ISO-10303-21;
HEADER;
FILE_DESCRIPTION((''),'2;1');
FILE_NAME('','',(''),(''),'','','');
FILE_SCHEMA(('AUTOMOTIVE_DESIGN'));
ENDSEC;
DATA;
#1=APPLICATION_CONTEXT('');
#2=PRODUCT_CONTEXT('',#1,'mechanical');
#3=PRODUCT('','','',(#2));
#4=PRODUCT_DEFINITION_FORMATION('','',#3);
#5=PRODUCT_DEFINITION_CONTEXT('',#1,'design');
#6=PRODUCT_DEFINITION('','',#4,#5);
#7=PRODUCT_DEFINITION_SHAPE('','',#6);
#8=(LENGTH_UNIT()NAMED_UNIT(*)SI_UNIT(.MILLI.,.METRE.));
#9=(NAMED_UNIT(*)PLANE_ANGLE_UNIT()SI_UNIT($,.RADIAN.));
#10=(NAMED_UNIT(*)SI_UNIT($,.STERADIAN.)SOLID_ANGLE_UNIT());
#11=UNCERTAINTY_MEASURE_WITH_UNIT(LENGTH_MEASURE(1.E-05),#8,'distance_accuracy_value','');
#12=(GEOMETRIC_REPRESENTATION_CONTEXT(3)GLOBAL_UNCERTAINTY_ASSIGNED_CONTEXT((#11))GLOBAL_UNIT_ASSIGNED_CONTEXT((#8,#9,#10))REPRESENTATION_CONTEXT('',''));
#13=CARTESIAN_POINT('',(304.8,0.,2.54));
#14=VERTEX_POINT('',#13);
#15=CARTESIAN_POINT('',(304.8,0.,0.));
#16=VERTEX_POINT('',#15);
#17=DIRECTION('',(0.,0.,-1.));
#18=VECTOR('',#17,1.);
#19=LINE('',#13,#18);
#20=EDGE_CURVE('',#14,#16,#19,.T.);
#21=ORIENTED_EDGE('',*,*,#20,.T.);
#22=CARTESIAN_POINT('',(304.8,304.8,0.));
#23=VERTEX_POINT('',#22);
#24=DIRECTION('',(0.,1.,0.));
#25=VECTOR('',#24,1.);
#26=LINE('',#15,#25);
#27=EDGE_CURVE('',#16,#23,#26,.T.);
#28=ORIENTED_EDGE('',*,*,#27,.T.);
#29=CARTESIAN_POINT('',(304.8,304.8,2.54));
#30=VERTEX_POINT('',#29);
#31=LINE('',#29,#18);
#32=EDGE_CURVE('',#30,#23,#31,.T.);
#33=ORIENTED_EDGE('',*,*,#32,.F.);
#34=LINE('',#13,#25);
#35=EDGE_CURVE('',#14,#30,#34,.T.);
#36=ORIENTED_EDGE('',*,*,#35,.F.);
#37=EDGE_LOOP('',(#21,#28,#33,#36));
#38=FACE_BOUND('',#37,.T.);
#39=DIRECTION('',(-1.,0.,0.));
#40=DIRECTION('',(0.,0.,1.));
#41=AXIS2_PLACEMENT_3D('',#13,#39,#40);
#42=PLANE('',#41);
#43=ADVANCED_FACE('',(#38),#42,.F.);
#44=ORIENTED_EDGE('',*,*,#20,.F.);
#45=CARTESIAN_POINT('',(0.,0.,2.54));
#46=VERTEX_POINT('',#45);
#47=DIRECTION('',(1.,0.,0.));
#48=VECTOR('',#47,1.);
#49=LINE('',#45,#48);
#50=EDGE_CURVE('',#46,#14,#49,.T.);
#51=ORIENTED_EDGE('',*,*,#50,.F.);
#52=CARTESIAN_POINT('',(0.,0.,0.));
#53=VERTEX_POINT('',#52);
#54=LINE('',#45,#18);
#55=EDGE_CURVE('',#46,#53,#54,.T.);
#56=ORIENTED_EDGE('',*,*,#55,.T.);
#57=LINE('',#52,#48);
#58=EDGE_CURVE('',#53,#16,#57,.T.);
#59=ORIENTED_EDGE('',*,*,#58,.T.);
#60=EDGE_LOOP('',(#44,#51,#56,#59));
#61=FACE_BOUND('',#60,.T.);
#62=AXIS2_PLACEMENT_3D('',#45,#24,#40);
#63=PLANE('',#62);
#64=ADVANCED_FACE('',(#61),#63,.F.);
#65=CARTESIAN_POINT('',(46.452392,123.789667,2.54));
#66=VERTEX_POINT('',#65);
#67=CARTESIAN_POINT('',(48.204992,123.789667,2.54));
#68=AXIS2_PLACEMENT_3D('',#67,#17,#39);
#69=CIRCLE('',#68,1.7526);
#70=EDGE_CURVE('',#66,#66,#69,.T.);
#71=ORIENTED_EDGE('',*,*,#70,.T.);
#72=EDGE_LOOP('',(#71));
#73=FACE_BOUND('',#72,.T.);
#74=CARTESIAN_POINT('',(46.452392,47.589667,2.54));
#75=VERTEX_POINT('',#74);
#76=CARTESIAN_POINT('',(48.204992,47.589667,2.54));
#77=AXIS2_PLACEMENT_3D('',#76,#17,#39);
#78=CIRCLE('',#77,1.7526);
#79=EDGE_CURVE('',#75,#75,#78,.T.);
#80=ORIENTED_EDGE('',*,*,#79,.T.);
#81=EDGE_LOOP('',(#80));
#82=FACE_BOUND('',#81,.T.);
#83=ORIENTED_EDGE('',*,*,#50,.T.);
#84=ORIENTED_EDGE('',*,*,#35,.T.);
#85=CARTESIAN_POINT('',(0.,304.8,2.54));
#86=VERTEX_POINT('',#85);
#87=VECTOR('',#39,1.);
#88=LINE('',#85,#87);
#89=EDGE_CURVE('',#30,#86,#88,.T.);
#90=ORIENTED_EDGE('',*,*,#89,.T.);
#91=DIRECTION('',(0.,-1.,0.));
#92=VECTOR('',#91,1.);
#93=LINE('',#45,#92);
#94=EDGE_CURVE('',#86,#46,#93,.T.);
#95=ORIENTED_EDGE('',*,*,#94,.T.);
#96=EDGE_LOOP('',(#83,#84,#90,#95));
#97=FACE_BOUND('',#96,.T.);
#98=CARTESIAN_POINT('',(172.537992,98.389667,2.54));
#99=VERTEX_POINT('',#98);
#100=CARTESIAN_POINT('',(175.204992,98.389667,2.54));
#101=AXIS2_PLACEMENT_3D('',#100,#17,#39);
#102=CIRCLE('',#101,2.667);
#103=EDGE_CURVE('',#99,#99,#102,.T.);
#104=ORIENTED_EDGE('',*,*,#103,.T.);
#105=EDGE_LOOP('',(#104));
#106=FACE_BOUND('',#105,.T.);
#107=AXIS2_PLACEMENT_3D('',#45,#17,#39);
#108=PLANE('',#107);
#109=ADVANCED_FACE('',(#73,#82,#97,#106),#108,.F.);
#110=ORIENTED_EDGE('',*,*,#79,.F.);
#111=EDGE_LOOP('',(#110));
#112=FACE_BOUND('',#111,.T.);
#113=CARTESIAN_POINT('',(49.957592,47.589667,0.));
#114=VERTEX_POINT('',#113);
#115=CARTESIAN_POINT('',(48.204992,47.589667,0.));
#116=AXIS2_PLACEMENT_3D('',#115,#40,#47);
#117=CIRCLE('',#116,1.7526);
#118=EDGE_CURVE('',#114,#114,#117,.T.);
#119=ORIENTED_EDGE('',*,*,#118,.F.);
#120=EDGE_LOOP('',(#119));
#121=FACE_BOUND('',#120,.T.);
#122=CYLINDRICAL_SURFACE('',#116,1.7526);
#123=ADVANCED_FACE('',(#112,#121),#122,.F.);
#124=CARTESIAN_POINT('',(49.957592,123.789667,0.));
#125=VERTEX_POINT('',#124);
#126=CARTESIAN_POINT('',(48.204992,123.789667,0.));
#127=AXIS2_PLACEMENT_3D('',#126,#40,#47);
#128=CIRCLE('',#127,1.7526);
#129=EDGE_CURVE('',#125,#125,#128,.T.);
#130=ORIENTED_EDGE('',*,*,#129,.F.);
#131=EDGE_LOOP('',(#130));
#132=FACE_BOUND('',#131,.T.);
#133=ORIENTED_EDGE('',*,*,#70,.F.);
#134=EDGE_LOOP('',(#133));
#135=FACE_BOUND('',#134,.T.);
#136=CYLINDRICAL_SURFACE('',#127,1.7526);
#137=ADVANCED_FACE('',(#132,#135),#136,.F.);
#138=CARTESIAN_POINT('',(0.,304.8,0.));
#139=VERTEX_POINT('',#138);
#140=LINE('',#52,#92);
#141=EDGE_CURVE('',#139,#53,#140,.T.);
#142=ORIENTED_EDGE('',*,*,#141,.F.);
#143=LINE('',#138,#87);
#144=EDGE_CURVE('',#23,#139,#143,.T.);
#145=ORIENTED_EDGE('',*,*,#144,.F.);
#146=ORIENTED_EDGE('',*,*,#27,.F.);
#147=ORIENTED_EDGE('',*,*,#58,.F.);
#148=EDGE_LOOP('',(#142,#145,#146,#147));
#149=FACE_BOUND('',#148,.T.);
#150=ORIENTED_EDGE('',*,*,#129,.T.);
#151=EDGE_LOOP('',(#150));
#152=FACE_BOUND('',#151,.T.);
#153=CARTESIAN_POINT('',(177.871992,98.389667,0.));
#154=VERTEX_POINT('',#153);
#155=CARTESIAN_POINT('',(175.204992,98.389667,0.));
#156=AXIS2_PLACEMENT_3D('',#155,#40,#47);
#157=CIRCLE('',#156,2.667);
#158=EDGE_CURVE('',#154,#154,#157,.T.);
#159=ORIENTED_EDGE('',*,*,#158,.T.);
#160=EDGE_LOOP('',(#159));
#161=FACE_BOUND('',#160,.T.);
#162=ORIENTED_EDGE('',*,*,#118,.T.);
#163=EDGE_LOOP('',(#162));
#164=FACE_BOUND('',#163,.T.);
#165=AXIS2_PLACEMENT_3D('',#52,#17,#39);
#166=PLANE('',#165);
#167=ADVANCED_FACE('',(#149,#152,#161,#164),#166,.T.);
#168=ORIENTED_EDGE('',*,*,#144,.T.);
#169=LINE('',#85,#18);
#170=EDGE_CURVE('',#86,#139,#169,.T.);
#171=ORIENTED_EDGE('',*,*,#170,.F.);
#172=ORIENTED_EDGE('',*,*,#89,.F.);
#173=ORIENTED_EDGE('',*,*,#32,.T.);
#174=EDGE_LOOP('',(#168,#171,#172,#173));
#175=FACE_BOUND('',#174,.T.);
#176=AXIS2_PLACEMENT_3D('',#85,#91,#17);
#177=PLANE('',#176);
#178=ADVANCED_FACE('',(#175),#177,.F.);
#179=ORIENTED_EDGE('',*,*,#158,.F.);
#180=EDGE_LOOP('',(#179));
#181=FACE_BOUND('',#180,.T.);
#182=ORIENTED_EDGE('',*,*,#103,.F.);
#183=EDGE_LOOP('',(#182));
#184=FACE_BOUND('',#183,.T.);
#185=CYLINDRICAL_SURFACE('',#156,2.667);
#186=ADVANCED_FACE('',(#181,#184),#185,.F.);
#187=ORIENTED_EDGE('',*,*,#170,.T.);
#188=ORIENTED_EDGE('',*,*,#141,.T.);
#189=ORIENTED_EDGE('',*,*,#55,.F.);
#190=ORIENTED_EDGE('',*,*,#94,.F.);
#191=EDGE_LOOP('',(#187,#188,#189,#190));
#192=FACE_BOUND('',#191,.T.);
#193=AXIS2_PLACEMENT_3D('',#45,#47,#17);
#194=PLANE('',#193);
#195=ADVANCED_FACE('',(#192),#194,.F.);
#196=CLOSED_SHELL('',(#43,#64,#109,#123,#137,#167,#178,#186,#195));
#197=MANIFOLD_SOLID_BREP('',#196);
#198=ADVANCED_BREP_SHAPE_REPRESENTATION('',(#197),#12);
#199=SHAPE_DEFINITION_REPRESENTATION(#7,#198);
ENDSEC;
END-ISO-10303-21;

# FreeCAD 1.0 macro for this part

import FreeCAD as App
import Part
import Sketcher

V = App.Vector
Q = App.Units.Quantity


def add_polygon(sketch, points):
    """Adds a closed chain of lines whose ends are joined by coincident constraints."""
    first, n = sketch.GeometryCount, len(points)
    for a, b in zip(points, points[1:] + points[:1]):
        sketch.addGeometry(Part.LineSegment(App.Vector(*a, 0), App.Vector(*b, 0)), False)
    for i in range(n):
        sketch.addConstraint(Sketcher.Constraint("Coincident", first + i, 2, first + (i + 1) % n, 1))

doc = App.newDocument("Part")
body = doc.addObject("PartDesign::Body", "Body")

# Sketch on XY plane
sketch1 = body.newObject("Sketcher::SketchObject", "Sketch")
sketch1.AttachmentSupport = (doc.getObject("XY_Plane"), [""])
sketch1.MapMode = "FlatFace"
add_polygon(sketch1, [(0, 305), (0, 0), (305, 0), (305, 305)])  # lines 0-3
sketch1.addConstraint([
    Sketcher.Constraint("Vertical", 0),
    Sketcher.Constraint("Horizontal", 1),
    Sketcher.Constraint("Vertical", 2),
    Sketcher.Constraint("Horizontal", 3),
    Sketcher.Constraint("Coincident", 0, 2, -1, 1),
    Sketcher.Constraint("Equal", 3, 0),
    Sketcher.Constraint("DistanceX", 1, 1, 1, 2, Q("12 in")),
])
pad1 = body.newObject("PartDesign::Pad", "Pad")
pad1.Profile = sketch1
pad1.Length = Q("0.1 in")

# Sketch on XY plane
sketch2 = body.newObject("Sketcher::SketchObject", "Sketch001")
sketch2.AttachmentSupport = (doc.getObject("XY_Plane"), [""])
sketch2.MapMode = "FlatFace"
sketch2.AttachmentOffset = App.Placement(V(0, 0, 0.1 * 25.4), App.Rotation())
sketch2.addGeometry([
    Part.Circle(V(48.2, 47.6, 0), V(0, 0, 1), 1.8),
    Part.Circle(V(175.2, 98.4, 0), V(0, 0, 1), 2.7),
    Part.Circle(V(48.2, 123.8, 0), V(0, 0, 1), 1.8),
], False)
sketch2.addConstraint([
    Sketcher.Constraint("Equal", 0, 2),
    Sketcher.Constraint("Vertical", 0, 3, 2, 3),
    Sketcher.Constraint("Diameter", 1, Q("0.21 in")),
    Sketcher.Constraint("Diameter", 0, Q("0.138 in")),
    Sketcher.Constraint("DistanceX", 0, 3, 1, 3, Q("5 in")),
    Sketcher.Constraint("DistanceY", 0, 3, 1, 3, Q("2 in")),
    Sketcher.Constraint("DistanceY", 0, 3, 2, 3, Q("3 in")),
    Sketcher.Constraint("DistanceX", -1, 1, 0, 3, Q("48.204992 mm")),
    Sketcher.Constraint("DistanceY", -1, 1, 0, 3, Q("47.589667 mm")),
])
pocket1 = body.newObject("PartDesign::Pocket", "Pocket")
pocket1.Profile = sketch2
pocket1.Type = "ThroughAll"
pocket1.Midplane = True

doc.recompute()
